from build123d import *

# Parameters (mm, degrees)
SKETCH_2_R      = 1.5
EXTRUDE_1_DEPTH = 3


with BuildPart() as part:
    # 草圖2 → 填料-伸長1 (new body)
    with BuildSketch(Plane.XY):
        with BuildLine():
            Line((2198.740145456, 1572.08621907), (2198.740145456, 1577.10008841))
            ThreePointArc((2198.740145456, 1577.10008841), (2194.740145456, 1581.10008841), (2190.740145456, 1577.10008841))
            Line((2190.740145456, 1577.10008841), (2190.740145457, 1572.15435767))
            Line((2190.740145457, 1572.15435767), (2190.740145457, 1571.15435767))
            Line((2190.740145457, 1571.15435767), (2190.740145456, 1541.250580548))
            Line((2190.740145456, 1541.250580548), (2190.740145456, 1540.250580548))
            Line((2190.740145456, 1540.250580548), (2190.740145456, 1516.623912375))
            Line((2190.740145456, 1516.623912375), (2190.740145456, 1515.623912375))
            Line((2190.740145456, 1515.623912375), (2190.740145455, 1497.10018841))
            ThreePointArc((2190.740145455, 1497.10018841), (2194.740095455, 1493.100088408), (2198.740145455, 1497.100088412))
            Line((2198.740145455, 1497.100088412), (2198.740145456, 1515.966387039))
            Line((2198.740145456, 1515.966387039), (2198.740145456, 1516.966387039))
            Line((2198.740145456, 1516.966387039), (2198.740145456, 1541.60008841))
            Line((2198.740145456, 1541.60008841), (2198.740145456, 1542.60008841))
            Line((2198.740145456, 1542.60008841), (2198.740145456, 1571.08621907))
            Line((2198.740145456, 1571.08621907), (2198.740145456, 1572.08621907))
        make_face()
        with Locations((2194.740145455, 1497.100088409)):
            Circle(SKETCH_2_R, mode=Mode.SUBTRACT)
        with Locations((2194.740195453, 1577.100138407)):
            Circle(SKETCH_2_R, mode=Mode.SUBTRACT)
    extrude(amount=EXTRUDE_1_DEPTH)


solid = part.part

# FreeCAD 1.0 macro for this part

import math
import FreeCAD as App
import Part
import Sketcher
Q = App.Units.Quantity

doc = App.newDocument("Part")
body = doc.addObject("PartDesign::Body", "Body")

# Sketch on XY plane
sketch1 = body.newObject("Sketcher::SketchObject", "Sketch")
sketch1.AttachmentSupport = (doc.getObject("XY_Plane"), [""])
sketch1.MapMode = "FlatFace"
sketch1.addGeometry([
    Part.ArcOfCircle(Part.Circle(App.Vector(2194.740145, 1577.100088, 0), App.Vector(0, 0, 1), 4), math.radians(0), math.radians(180)),  # 0
    Part.LineSegment(App.Vector(2190.740145, 1577.100088, 0), App.Vector(2190.740145, 1572.154358, 0)),  # 1
    Part.LineSegment(App.Vector(2190.740145, 1572.154358, 0), App.Vector(2190.740145, 1571.154358, 0)),  # 2
    Part.LineSegment(App.Vector(2190.740145, 1571.154358, 0), App.Vector(2190.740145, 1541.250581, 0)),  # 3
    Part.LineSegment(App.Vector(2190.740145, 1541.250581, 0), App.Vector(2190.740145, 1515.623912, 0)),  # 4
    Part.LineSegment(App.Vector(2190.740145, 1515.623912, 0), App.Vector(2190.740145, 1497.100188, 0)),  # 5
    Part.ArcOfCircle(Part.Circle(App.Vector(2194.740145, 1497.100088, 0), App.Vector(0, 0, 1), 4), math.radians(179.998568), math.radians(360)),  # 6
    Part.LineSegment(App.Vector(2198.740145, 1497.100088, 0), App.Vector(2198.740145, 1515.966387, 0)),  # 7
    Part.LineSegment(App.Vector(2198.740145, 1515.966387, 0), App.Vector(2198.740145, 1577.100088, 0)),  # 8
    Part.Circle(App.Vector(2194.740145, 1497.100088, 0), App.Vector(0, 0, 1), 1.5),  # 9
    Part.Circle(App.Vector(2194.740195, 1577.100138, 0), App.Vector(0, 0, 1), 1.5),  # 10
], False)
sketch1.addConstraint([
    Sketcher.Constraint("Tangent", 0, 2, 1, 1),
    Sketcher.Constraint("Coincident", 1, 2, 2, 1),
    Sketcher.Constraint("Coincident", 2, 2, 3, 1),
    Sketcher.Constraint("Coincident", 3, 2, 4, 1),
    Sketcher.Constraint("Coincident", 4, 2, 5, 1),
    Sketcher.Constraint("Coincident", 5, 2, 6, 1),
    Sketcher.Constraint("Tangent", 6, 2, 7, 1),
    Sketcher.Constraint("Coincident", 7, 2, 8, 1),
    Sketcher.Constraint("Tangent", 8, 2, 0, 1),
    Sketcher.Constraint("Vertical", 1),
    Sketcher.Constraint("Vertical", 2),
    Sketcher.Constraint("Vertical", 3),
    Sketcher.Constraint("Vertical", 4),
    Sketcher.Constraint("Vertical", 5),
    Sketcher.Constraint("Vertical", 7),
    Sketcher.Constraint("Vertical", 8),
    Sketcher.Constraint("Coincident", 9, 3, 6, 3),
    Sketcher.Constraint("Equal", 9, 10),
    Sketcher.Constraint("Diameter", 9, Q("3 mm")),
    Sketcher.Constraint("Radius", 0, Q("4 mm")),
    Sketcher.Constraint("DistanceY", 2, 2, 2, 1, Q("1 mm")),
    Sketcher.Constraint("DistanceY", 6, 3, 0, 3, Q("80 mm")),
    Sketcher.Constraint("DistanceY", 7, 1, 7, 2, Q("18.866299 mm")),
    Sketcher.Constraint("DistanceY", 1, 2, 1, 1, Q("4.945731 mm")),
    Sketcher.Constraint("DistanceY", 4, 2, 4, 1, Q("25.626668 mm")),
    Sketcher.Constraint("DistanceY", 6, 3, 5, 2, Q("0.0001 mm")),
    Sketcher.Constraint("DistanceY", 3, 2, 3, 1, Q("29.903777 mm")),
    Sketcher.Constraint("DistanceY", -1, 1, 0, 3, Q("1577.100088 mm")),
    Sketcher.Constraint("DistanceY", -1, 1, 10, 3, Q("1577.100138 mm")),
    Sketcher.Constraint("DistanceX", 0, 2, 10, 3, Q("4.00005 mm")),
    Sketcher.Constraint("DistanceX", -1, 1, 0, 3, Q("2194.740145 mm")),
])
pad1 = body.newObject("PartDesign::Pad", "Pad")
pad1.Profile = sketch1
pad1.Length = 3

doc.recompute()
